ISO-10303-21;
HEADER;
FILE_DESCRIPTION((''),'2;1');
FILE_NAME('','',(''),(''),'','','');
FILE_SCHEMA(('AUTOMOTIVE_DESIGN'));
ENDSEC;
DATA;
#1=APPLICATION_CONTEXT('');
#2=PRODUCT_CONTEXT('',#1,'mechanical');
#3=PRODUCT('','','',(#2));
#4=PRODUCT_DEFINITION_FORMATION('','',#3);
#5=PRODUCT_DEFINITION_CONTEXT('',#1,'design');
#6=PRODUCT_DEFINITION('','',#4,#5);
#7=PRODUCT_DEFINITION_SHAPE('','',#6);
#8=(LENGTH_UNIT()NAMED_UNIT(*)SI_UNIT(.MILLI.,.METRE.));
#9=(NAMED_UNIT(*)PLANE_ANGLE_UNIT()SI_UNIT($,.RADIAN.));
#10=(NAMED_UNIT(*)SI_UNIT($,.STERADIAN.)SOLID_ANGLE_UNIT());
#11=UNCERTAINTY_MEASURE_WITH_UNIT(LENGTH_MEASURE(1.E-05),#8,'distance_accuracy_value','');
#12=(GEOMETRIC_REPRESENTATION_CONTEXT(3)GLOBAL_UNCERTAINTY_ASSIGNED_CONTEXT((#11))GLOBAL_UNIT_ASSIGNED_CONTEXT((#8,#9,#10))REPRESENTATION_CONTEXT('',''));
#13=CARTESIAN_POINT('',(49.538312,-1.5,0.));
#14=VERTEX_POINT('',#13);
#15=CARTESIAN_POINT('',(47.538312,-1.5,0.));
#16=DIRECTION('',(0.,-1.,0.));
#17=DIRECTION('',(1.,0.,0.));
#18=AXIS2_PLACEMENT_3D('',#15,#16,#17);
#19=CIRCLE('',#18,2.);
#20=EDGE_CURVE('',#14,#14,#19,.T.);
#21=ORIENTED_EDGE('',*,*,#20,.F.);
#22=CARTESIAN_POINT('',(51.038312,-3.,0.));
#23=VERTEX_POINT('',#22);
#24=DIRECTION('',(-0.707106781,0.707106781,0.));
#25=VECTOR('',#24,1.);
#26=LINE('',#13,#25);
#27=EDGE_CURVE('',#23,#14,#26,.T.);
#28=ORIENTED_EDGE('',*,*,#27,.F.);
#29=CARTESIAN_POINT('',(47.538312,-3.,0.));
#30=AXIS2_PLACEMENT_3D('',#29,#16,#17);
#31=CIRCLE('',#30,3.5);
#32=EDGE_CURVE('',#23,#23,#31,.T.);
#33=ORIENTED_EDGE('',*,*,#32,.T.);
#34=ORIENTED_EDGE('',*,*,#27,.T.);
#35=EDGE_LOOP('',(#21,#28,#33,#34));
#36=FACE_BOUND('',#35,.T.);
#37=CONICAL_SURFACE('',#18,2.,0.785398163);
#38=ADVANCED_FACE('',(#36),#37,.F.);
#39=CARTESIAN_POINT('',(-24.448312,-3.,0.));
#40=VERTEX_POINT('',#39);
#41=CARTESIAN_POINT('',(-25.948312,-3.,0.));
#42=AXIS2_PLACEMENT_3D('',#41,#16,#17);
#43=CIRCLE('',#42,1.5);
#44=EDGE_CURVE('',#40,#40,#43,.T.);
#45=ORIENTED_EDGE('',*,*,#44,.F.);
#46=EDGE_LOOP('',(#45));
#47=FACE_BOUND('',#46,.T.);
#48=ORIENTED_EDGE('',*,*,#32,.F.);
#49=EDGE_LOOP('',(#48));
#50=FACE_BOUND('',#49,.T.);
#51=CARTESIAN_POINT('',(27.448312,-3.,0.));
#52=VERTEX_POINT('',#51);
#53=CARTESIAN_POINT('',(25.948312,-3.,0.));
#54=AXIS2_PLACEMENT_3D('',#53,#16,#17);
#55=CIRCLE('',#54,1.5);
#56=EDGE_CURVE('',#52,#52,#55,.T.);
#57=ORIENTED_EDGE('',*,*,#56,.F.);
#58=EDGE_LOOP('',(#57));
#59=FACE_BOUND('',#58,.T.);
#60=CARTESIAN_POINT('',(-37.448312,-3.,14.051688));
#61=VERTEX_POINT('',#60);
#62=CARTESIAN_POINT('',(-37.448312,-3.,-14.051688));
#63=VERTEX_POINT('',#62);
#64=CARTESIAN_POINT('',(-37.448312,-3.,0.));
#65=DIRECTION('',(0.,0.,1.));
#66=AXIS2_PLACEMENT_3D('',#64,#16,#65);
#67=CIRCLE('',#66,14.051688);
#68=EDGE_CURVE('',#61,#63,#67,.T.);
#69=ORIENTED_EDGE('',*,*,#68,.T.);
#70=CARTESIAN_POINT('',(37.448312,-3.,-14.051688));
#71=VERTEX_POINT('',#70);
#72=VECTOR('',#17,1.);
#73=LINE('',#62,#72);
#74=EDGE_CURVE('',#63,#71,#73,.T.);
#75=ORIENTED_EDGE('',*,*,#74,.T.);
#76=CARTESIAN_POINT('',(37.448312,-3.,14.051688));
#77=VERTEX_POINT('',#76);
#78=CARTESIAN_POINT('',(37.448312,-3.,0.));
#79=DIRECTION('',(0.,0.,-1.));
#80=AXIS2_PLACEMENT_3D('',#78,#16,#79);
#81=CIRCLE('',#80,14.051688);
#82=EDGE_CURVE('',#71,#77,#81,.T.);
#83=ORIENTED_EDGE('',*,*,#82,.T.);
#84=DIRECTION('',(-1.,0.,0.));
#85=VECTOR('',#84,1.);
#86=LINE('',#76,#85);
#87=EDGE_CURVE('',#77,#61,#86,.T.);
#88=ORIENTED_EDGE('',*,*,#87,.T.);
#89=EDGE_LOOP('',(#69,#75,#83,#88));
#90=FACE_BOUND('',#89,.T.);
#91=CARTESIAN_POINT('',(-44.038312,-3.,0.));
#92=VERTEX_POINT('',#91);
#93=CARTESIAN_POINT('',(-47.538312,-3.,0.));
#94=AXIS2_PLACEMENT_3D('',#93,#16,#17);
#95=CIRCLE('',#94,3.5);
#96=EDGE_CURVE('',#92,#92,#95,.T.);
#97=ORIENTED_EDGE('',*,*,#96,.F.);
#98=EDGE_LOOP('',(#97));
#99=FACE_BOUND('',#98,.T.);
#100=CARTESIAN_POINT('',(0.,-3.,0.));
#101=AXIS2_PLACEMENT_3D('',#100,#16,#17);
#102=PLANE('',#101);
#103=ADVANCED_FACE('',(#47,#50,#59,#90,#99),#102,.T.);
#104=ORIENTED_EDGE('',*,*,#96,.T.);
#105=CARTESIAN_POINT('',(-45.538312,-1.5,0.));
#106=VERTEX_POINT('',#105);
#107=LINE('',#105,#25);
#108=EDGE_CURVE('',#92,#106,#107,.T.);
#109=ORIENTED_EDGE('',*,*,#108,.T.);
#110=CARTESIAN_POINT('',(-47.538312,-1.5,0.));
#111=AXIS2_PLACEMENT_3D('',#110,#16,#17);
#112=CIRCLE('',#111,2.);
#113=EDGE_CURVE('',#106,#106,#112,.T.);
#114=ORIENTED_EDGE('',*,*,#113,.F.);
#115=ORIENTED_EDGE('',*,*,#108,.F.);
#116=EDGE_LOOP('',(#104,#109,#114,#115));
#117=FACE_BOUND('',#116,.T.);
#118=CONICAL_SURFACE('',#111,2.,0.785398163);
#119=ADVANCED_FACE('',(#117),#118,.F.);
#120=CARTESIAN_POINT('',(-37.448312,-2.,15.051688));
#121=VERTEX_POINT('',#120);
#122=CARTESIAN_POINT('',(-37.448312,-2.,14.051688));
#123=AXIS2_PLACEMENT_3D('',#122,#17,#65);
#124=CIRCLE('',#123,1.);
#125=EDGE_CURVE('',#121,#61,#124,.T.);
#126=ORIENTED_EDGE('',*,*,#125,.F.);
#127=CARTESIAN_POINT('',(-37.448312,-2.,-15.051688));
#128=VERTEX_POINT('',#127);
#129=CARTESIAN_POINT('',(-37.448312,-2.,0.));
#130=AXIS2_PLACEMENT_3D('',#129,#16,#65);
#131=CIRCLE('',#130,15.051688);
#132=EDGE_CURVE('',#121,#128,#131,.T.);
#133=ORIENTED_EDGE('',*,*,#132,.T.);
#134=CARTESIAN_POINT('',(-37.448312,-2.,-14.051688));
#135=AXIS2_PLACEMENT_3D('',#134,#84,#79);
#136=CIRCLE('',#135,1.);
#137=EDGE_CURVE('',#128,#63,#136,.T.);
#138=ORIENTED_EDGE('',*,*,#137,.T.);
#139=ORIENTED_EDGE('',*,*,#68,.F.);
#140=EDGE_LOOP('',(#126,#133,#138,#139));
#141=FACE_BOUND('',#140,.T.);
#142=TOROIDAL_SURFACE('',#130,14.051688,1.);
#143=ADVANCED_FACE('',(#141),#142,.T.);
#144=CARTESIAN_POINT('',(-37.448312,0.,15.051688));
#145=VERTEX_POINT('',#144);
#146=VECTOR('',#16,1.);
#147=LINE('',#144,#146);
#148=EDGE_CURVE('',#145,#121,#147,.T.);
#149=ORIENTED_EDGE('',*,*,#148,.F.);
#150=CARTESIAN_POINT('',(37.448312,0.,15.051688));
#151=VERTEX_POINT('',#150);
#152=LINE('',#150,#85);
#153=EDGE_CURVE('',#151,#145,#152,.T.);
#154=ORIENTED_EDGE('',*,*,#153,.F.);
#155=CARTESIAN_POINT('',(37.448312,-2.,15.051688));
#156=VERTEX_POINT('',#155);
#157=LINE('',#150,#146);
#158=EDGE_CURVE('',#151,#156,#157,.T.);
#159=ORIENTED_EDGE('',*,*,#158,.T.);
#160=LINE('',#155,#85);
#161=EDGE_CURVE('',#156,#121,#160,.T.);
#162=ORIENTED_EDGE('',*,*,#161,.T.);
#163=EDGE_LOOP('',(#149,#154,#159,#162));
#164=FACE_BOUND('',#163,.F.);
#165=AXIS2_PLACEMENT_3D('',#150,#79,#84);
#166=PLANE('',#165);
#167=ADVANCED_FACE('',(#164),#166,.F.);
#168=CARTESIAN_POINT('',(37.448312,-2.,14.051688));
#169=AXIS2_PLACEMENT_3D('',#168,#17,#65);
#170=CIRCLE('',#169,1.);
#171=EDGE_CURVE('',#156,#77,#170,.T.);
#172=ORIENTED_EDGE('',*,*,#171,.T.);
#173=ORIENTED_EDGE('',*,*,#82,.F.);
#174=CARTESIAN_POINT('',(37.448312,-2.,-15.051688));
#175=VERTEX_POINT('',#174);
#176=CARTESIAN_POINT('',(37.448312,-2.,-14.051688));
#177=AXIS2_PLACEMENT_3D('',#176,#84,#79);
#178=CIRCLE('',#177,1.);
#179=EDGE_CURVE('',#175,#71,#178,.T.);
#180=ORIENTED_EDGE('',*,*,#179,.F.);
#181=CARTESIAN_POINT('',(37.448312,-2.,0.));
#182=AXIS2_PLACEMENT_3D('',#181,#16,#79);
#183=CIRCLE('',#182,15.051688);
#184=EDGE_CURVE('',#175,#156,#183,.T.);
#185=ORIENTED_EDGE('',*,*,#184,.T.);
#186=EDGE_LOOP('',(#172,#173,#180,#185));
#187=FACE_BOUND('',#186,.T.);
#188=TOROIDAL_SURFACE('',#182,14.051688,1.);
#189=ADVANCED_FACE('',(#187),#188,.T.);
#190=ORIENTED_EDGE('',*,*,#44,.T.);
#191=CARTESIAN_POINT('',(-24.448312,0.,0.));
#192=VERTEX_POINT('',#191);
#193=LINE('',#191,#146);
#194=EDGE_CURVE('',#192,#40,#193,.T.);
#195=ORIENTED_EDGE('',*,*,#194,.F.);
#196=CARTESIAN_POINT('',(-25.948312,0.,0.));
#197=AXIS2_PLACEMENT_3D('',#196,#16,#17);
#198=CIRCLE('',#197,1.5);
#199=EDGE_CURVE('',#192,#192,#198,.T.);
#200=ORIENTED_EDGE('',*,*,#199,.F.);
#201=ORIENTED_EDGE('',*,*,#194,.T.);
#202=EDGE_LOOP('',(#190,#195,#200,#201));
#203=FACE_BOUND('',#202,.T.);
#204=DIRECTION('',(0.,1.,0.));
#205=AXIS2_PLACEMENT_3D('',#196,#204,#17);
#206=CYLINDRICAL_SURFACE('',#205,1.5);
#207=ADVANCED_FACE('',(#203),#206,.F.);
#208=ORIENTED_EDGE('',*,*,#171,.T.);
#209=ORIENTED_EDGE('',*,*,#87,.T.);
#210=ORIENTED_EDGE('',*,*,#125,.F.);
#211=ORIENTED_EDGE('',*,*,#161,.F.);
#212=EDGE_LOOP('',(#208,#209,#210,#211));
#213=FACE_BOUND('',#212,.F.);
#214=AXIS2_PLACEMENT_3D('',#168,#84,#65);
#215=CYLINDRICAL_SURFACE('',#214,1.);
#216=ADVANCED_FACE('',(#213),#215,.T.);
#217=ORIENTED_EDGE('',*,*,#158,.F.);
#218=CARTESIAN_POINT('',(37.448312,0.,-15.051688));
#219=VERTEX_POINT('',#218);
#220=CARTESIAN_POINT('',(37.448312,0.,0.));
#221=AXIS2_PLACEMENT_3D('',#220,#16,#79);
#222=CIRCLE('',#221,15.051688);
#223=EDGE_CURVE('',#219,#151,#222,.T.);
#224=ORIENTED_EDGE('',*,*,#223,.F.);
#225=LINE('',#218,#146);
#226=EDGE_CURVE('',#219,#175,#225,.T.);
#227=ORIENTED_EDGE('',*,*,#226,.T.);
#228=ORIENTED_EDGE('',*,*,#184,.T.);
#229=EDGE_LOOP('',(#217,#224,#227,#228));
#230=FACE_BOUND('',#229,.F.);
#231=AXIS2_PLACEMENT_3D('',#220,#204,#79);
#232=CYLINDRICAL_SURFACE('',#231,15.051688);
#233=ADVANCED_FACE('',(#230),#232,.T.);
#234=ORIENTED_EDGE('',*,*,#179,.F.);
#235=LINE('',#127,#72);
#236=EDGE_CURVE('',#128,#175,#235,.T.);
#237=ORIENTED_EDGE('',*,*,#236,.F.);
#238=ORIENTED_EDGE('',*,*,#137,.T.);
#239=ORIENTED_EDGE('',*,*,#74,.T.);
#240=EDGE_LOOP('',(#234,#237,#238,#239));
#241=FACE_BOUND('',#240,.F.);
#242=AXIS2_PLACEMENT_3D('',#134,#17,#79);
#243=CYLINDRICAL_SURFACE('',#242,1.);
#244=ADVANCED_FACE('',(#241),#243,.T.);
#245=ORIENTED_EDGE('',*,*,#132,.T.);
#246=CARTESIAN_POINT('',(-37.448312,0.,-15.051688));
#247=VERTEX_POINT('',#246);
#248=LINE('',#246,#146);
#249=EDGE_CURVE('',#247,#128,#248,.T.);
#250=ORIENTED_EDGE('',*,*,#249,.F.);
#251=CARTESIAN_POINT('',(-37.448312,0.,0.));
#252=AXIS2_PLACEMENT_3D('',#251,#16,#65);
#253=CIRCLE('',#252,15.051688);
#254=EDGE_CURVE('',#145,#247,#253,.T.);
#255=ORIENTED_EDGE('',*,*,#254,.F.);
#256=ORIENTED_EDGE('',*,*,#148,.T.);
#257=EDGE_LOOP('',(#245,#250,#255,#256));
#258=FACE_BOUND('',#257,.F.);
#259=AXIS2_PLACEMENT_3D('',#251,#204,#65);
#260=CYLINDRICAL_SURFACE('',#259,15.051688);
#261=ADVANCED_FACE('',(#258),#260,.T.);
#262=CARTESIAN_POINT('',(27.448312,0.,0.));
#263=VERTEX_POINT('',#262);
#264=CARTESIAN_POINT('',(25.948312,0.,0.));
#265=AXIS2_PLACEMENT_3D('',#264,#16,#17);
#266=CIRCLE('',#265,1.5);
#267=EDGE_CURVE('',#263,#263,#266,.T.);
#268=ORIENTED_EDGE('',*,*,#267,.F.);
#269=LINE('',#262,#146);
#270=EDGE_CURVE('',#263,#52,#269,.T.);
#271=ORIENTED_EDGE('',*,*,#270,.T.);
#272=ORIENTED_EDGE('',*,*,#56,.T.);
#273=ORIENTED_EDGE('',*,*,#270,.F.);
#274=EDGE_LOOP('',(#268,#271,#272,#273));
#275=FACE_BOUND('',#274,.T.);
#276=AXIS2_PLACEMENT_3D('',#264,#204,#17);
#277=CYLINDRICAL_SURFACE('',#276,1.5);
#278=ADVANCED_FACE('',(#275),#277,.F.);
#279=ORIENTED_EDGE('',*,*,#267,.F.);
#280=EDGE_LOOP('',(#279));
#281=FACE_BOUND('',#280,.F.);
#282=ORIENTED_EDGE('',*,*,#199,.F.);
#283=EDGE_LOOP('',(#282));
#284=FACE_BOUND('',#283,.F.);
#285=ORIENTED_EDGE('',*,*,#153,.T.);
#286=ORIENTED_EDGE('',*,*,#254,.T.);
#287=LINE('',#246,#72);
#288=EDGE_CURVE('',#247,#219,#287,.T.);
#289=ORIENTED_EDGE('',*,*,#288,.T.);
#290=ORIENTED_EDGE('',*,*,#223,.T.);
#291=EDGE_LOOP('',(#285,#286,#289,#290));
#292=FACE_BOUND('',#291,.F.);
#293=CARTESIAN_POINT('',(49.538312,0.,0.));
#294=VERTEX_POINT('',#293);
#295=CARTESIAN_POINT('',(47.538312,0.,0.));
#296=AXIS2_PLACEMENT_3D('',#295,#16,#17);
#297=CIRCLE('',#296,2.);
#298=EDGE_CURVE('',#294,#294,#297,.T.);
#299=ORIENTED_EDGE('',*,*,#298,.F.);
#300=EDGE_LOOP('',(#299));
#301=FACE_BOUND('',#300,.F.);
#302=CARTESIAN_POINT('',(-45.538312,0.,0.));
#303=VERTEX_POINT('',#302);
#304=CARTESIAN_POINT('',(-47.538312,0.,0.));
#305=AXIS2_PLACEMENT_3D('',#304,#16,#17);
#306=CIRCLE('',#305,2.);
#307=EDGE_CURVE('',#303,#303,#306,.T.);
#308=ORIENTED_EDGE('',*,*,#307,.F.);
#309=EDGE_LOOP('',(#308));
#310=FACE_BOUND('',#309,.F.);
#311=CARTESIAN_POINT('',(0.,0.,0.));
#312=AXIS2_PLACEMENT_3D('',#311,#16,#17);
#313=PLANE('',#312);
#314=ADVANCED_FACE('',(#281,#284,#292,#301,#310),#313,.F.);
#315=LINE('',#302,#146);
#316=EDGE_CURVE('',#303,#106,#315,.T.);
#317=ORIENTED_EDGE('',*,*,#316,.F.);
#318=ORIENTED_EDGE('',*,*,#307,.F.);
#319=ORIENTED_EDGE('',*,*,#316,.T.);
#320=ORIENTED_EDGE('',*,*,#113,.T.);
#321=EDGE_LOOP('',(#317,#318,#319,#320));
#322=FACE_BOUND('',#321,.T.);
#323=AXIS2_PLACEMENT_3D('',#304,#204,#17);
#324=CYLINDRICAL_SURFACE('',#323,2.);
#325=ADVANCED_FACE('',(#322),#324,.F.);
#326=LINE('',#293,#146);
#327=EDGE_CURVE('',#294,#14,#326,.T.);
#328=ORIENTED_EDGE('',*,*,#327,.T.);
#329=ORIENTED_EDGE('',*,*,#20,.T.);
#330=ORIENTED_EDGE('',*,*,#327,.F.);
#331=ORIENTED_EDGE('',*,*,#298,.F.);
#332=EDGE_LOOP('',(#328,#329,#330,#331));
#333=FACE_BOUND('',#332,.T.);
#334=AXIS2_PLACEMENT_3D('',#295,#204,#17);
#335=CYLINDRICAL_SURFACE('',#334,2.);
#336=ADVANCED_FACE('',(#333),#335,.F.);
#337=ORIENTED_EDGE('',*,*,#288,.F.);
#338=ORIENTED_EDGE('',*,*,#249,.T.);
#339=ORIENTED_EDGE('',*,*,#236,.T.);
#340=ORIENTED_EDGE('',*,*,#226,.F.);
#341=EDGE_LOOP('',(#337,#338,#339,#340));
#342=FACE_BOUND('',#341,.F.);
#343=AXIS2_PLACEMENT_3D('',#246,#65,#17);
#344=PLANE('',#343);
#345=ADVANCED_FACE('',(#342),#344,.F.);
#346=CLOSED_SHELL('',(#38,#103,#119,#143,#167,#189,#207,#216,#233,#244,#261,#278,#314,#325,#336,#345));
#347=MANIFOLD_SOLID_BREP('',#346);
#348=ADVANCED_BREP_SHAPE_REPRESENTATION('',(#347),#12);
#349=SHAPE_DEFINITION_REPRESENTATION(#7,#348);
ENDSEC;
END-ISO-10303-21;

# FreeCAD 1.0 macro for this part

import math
import FreeCAD as App
import Part
import Sketcher

V = App.Vector
Q = App.Units.Quantity


def edges_at(feature, points):
    """Names of the edges that pass closest to the given points."""
    edges = feature.Shape.Edges
    near = lambda p: min(range(len(edges)), key=lambda i: edges[i].distToShape(Part.Vertex(*p))[0])
    return sorted({f"Edge{near(p) + 1}" for p in points})

doc = App.newDocument("Part")
body = doc.addObject("PartDesign::Body", "Body")

# Sketch on XZ plane
sketch1 = doc.addObject("Sketcher::SketchObject", "Sketch")
body.addObject(sketch1)
sketch1.AttachmentSupport = (doc.XZ_Plane, [""])
sketch1.MapMode = "FlatFace"
sketch1.addGeometry(Part.LineSegment(V(37.4, 15.1, 0), V(-37.4, 15.1, 0)), False)
sketch1.addGeometry(Part.ArcOfCircle(Part.Circle(V(-37.4, 0, 0), V(0, 0, 1), 15.1), math.radians(90), math.radians(270)), False)
sketch1.addGeometry(Part.LineSegment(V(-37.4, -15.1, 0), V(37.4, -15.1, 0)), False)
sketch1.addGeometry(Part.ArcOfCircle(Part.Circle(V(37.4, 0, 0), V(0, 0, 1), 15.1), math.radians(-90), math.radians(90)), False)
sketch1.addGeometry(Part.Circle(V(-47.5, 0, 0), V(0, 0, 1), 2), False)
sketch1.addGeometry(Part.Circle(V(-25.9, 0, 0), V(0, 0, 1), 1.5), False)
sketch1.addGeometry(Part.Circle(V(25.9, 0, 0), V(0, 0, 1), 1.5), False)
sketch1.addGeometry(Part.Circle(V(47.5, 0, 0), V(0, 0, 1), 2), False)
sketch1.addConstraint(Sketcher.Constraint("Tangent", 0, 2, 1, 1))
sketch1.addConstraint(Sketcher.Constraint("Tangent", 1, 2, 2, 1))
sketch1.addConstraint(Sketcher.Constraint("Tangent", 2, 2, 3, 1))
sketch1.addConstraint(Sketcher.Constraint("Tangent", 3, 2, 0, 1))
sketch1.addConstraint(Sketcher.Constraint("Horizontal", 0))
sketch1.addConstraint(Sketcher.Constraint("Horizontal", 2))
sketch1.addConstraint(Sketcher.Constraint("Equal", 5, 6))
sketch1.addConstraint(Sketcher.Constraint("Equal", 4, 7))
sketch1.addConstraint(Sketcher.Constraint("Symmetric", 1, 3, 3, 3, -1, 1))
sketch1.addConstraint(Sketcher.Constraint("Symmetric", 5, 3, 6, 3, -1, 1))
sketch1.addConstraint(Sketcher.Constraint("Symmetric", 4, 3, 7, 3, -1, 1))
sketch1.addConstraint(Sketcher.Constraint("PointOnObject", 4, 3, -1))
sketch1.addConstraint(Sketcher.Constraint("PointOnObject", 5, 3, -1))
sketch1.addConstraint(Sketcher.Constraint("Diameter", 4, Q("4 mm")))
sketch1.addConstraint(Sketcher.Constraint("Diameter", 5, Q("3 mm")))
sketch1.addConstraint(Sketcher.Constraint("DistanceX", 1, 3, 5, 3, Q("11.5 mm")))
sketch1.addConstraint(Sketcher.Constraint("DistanceX", 4, 3, 1, 3, Q("10.09 mm")))
sketch1.addConstraint(Sketcher.Constraint("Radius", 1, Q("15.051688 mm")))
sketch1.addConstraint(Sketcher.Constraint("DistanceX", 0, 2, 0, 1, Q("74.896624 mm")))
pad1 = doc.addObject("PartDesign::Pad", "Pad")
body.addObject(pad1)
pad1.Profile = sketch1
pad1.Length = 3
doc.recompute()

fillet = doc.addObject("PartDesign::Fillet", "Fillet")
body.addObject(fillet)
fillet.Base = (pad1, edges_at(pad1, [
    (0, -3, 15.052),
    (-52.5, -3, 0),
    (0, -3, -15.052),
    (52.5, -3, 0),
]))
fillet.Radius = 1
doc.recompute()

chamfer = doc.addObject("PartDesign::Chamfer", "Chamfer")
body.addObject(chamfer)
chamfer.Base = (fillet, edges_at(fillet, [(-49.538, -3, 0)]))
chamfer.Size = 1.5
doc.recompute()

chamfer2 = doc.addObject("PartDesign::Chamfer", "Chamfer001")
body.addObject(chamfer2)
chamfer2.Base = (chamfer, edges_at(chamfer, [(45.538, -3, 0)]))
chamfer2.Size = 1.5

doc.recompute()
